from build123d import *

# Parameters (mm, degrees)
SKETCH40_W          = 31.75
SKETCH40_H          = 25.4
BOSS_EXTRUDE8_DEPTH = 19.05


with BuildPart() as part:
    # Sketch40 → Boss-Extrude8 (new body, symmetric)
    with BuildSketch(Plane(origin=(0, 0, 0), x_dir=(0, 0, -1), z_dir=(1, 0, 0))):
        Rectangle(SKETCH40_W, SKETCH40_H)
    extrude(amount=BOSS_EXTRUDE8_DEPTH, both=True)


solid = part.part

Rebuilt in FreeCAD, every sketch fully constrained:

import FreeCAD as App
import Part
import Sketcher

V = App.Vector
Q = App.Units.Quantity

doc = App.newDocument("Part")
params = doc.addObject("Spreadsheet::Sheet", "Params")
for row, (alias, value) in enumerate([
    ("sketch1_width", "1 in"),
    ("sketch1_height", "1.25 in"),
    ("pad1_length", "1.5 in"),
], start=1):
    params.set(f"A{row}", alias)
    params.set(f"B{row}", "=" + value)
    params.setAlias(f"B{row}", alias)

body = doc.addObject("PartDesign::Body", "Body")

# Sketch on YZ plane
sketch1 = body.newObject("Sketcher::SketchObject", "Sketch")
sketch1.AttachmentSupport = (doc.getObject("YZ_Plane"), [""])
sketch1.MapMode = "FlatFace"
sketch1.addGeometry([
    Part.LineSegment(V(13, 16, 0), V(-13, 16, 0)),
    Part.LineSegment(V(-13, 16, 0), V(-13, -16, 0)),
    Part.LineSegment(V(-13, -16, 0), V(13, -16, 0)),
    Part.LineSegment(V(13, -16, 0), V(13, 16, 0)),
], False)
sketch1.addConstraint([
    Sketcher.Constraint("Coincident", 0, 2, 1, 1),
    Sketcher.Constraint("Coincident", 1, 2, 2, 1),
    Sketcher.Constraint("Coincident", 2, 2, 3, 1),
    Sketcher.Constraint("Coincident", 3, 2, 0, 1),
    Sketcher.Constraint("Horizontal", 0),
    Sketcher.Constraint("Vertical", 1),
    Sketcher.Constraint("Horizontal", 2),
    Sketcher.Constraint("Vertical", 3),
    Sketcher.Constraint("Symmetric", 0, 2, 2, 2, -1, 1),
    Sketcher.Constraint("DistanceX", 0, 2, 0, 1, Q("1 in")),
    Sketcher.Constraint("DistanceY", 1, 2, 1, 1, Q("1.25 in")),
])
sketch1.setExpression("Constraints[9]", "Params.sketch1_width")
sketch1.setExpression("Constraints[10]", "Params.sketch1_height")
pad1 = body.newObject("PartDesign::Pad", "Pad")
pad1.Profile = sketch1
pad1.setExpression("Length", "Params.pad1_length")
pad1.Midplane = True

doc.recompute()
